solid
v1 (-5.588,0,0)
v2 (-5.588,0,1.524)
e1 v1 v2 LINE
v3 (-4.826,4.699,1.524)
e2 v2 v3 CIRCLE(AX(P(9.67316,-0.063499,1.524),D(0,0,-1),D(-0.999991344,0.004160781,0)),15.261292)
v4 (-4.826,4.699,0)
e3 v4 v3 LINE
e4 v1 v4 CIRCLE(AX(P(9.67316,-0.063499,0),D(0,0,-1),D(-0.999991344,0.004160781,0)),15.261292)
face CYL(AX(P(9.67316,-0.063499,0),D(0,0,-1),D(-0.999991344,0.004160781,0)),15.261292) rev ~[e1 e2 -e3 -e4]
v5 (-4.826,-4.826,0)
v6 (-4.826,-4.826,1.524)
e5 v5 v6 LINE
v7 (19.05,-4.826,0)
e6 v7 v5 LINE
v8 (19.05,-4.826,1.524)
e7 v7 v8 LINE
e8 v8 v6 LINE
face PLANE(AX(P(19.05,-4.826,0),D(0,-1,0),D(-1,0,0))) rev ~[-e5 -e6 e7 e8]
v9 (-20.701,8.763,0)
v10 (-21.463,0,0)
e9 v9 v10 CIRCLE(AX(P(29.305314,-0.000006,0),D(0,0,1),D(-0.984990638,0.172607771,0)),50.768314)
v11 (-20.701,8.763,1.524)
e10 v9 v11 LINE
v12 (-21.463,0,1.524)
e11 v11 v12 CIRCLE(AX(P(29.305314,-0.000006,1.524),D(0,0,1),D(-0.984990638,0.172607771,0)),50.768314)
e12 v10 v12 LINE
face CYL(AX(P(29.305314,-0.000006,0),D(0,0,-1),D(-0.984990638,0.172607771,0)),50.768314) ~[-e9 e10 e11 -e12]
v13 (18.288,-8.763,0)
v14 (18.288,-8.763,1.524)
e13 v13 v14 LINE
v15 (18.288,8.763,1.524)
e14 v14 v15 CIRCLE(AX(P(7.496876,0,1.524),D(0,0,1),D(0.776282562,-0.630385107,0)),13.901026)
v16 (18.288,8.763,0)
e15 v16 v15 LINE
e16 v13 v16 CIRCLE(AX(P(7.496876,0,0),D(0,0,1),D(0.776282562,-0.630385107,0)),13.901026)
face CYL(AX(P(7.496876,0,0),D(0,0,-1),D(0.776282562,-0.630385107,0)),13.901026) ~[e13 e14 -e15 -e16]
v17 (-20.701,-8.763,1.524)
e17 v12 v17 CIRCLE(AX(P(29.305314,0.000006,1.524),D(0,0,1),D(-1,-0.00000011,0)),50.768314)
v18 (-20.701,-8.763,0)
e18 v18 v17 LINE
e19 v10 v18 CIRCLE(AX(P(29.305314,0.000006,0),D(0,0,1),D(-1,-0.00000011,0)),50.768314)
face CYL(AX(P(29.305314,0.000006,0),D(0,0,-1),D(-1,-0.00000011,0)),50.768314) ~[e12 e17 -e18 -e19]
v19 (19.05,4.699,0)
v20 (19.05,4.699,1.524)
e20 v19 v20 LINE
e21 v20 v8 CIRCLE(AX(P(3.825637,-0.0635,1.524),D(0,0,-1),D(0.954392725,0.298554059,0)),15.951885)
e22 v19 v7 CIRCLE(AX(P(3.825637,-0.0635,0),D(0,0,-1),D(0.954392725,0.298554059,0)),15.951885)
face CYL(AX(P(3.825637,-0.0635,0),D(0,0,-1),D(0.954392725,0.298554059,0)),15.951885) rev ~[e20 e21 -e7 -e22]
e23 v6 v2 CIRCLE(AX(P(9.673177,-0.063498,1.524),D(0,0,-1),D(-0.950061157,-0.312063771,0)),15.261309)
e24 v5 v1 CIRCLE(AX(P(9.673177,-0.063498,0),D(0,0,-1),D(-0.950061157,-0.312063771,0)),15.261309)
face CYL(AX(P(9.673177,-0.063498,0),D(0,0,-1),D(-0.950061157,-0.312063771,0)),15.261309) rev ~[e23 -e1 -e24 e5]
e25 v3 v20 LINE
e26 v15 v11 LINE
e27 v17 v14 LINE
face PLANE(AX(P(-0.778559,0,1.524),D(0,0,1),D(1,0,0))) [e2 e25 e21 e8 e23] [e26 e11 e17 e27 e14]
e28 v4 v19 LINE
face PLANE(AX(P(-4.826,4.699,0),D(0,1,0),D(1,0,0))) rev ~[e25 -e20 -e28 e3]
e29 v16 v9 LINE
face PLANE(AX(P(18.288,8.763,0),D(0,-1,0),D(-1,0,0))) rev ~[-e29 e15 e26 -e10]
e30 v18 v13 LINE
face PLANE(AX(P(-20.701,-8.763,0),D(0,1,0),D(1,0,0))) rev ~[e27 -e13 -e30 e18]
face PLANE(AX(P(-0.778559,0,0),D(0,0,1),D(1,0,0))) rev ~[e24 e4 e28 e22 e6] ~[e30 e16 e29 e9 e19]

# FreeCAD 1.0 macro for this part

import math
import FreeCAD as App
import Part
import Sketcher

V = App.Vector
Q = App.Units.Quantity

doc = App.newDocument("Part")
body = doc.addObject("PartDesign::Body", "Body")

sketch1 = body.newObject("Sketcher::SketchObject", "Sketch")
sketch1.AttachmentSupport = (doc.getObject("XY_Plane"), [""])
sketch1.MapMode = "FlatFace"
sketch1.addGeometry(Part.ArcOfCircle(Part.Circle(V(7.496876, 0, 0), V(0, 0, 1), 13.901026), math.radians(-39.078541), math.radians(39.078541)), False)
sketch1.addGeometry(Part.LineSegment(V(18.288, 8.763, 0), V(-20.701, 8.763, 0)), False)
sketch1.addGeometry(Part.ArcOfCircle(Part.Circle(V(29.305314, -0.000006, 0), V(0, 0, 1), 50.768314), math.radians(170.060525), math.radians(179.999994)), False)
sketch1.addGeometry(Part.ArcOfCircle(Part.Circle(V(29.305314, 0.000006, 0), V(0, 0, 1), 50.768314), math.radians(-179.999994), math.radians(-170.060525)), False)
sketch1.addGeometry(Part.LineSegment(V(-20.701, -8.763, 0), V(18.288, -8.763, 0)), False)
sketch1.addGeometry(Part.LineSegment(V(19.05, -4.826, 0), V(-4.826, -4.826, 0)), False)
sketch1.addGeometry(Part.ArcOfCircle(Part.Circle(V(9.673177, -0.063498, 0), V(0, 0, 1), 15.261309), math.radians(179.761606), math.radians(198.183647)), False)
sketch1.addGeometry(Part.ArcOfCircle(Part.Circle(V(9.67316, -0.063499, 0), V(0, 0, 1), 15.261292), math.radians(161.816343), math.radians(179.761604)), False)
sketch1.addGeometry(Part.LineSegment(V(-4.826, 4.699, 0), V(19.05, 4.699, 0)), False)
sketch1.addGeometry(Part.ArcOfCircle(Part.Circle(V(3.825637, -0.0635, 0), V(0, 0, 1), 15.951885), math.radians(-17.370777), math.radians(17.370777)), False)
sketch1.addConstraint(Sketcher.Constraint("Coincident", 0, 2, 1, 1))
sketch1.addConstraint(Sketcher.Constraint("Coincident", 1, 2, 2, 1))
sketch1.addConstraint(Sketcher.Constraint("Coincident", 2, 2, 3, 1))
sketch1.addConstraint(Sketcher.Constraint("Coincident", 3, 2, 4, 1))
sketch1.addConstraint(Sketcher.Constraint("Coincident", 4, 2, 0, 1))
sketch1.addConstraint(Sketcher.Constraint("Coincident", 5, 2, 6, 2))
sketch1.addConstraint(Sketcher.Constraint("Coincident", 6, 1, 7, 2))
sketch1.addConstraint(Sketcher.Constraint("Coincident", 7, 1, 8, 1))
sketch1.addConstraint(Sketcher.Constraint("Coincident", 8, 2, 9, 2))
sketch1.addConstraint(Sketcher.Constraint("Coincident", 9, 1, 5, 1))
sketch1.addConstraint(Sketcher.Constraint("Horizontal", 1))
sketch1.addConstraint(Sketcher.Constraint("Horizontal", 4))
sketch1.addConstraint(Sketcher.Constraint("Horizontal", 5))
sketch1.addConstraint(Sketcher.Constraint("Horizontal", 8))
sketch1.addConstraint(Sketcher.Constraint("PointOnObject", 0, 3, -1))
sketch1.addConstraint(Sketcher.Constraint("PointOnObject", 2, 2, -1))
sketch1.addConstraint(Sketcher.Constraint("PointOnObject", 6, 1, -1))
sketch1.addConstraint(Sketcher.Constraint("DistanceX", 5, 2, 5, 1, Q("0.94 in")))
sketch1.addConstraint(Sketcher.Constraint("DistanceX", 8, 1, 8, 2, Q("0.94 in")))
sketch1.addConstraint(Sketcher.Constraint("DistanceX", 1, 2, 1, 1, Q("1.535 in")))
sketch1.addConstraint(Sketcher.Constraint("DistanceX", 4, 1, 4, 2, Q("1.535 in")))
sketch1.addConstraint(Sketcher.Constraint("DistanceX", -1, 1, 0, 2, Q("0.72 in")))
sketch1.addConstraint(Sketcher.Constraint("DistanceX", -1, 1, 4, 2, Q("0.72 in")))
sketch1.addConstraint(Sketcher.Constraint("DistanceX", 5, 2, -1, 1, Q("0.19 in")))
sketch1.addConstraint(Sketcher.Constraint("DistanceY", 5, 2, -1, 1, Q("0.19 in")))
sketch1.addConstraint(Sketcher.Constraint("DistanceX", 6, 1, -1, 1, Q("0.22 in")))
sketch1.addConstraint(Sketcher.Constraint("DistanceX", 7, 1, -1, 1, Q("0.19 in")))
sketch1.addConstraint(Sketcher.Constraint("DistanceX", 2, 2, 1, 2, Q("0.03 in")))
sketch1.addConstraint(Sketcher.Constraint("DistanceY", 3, 2, 1, 2, Q("0.69 in")))
sketch1.addConstraint(Sketcher.Constraint("DistanceY", 8, 2, 0, 2, Q("0.16 in")))
sketch1.addConstraint(Sketcher.Constraint("Radius", 6, 15.261309))
sketch1.addConstraint(Sketcher.Constraint("Radius", 7, 15.261292))
sketch1.addConstraint(Sketcher.Constraint("Radius", 0, 13.901026))
sketch1.addConstraint(Sketcher.Constraint("Radius", 2, 50.768314))
sketch1.addConstraint(Sketcher.Constraint("Radius", 3, 50.768314))
sketch1.addConstraint(Sketcher.Constraint("Radius", 9, 15.951885))
pad1 = body.newObject("PartDesign::Pad", "Pad")
pad1.Profile = sketch1
pad1.Length = Q("0.06 in")

doc.recompute()
